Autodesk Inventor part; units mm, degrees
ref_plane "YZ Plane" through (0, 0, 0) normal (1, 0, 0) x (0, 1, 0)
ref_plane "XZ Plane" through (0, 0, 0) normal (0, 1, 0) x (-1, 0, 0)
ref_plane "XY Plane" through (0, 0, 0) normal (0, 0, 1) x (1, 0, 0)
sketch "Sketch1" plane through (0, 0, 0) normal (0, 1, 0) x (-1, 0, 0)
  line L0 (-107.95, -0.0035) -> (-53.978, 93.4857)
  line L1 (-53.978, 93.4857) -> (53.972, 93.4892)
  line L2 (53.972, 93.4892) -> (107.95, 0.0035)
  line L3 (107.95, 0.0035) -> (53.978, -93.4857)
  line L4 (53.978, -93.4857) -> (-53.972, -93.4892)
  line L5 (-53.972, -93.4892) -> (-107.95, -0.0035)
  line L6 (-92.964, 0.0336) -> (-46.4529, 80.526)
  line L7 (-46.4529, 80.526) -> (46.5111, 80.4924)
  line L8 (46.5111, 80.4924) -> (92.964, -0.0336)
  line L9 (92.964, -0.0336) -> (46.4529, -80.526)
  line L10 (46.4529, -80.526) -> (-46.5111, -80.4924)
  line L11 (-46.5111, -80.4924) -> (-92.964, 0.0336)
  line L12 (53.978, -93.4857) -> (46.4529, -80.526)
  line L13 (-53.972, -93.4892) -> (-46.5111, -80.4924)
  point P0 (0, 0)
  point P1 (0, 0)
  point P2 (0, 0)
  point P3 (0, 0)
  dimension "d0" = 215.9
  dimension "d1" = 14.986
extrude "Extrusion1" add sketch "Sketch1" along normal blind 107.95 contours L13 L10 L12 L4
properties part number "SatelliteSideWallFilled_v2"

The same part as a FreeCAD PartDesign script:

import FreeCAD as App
import Part
import Sketcher

V = App.Vector
Q = App.Units.Quantity


def add_polygon(sketch, points):
    """Adds a closed chain of lines whose ends are joined by coincident constraints."""
    first, n = sketch.GeometryCount, len(points)
    for a, b in zip(points, points[1:] + points[:1]):
        sketch.addGeometry(Part.LineSegment(App.Vector(*a, 0), App.Vector(*b, 0)), False)
    for i in range(n):
        sketch.addConstraint(Sketcher.Constraint("Coincident", first + i, 2, first + (i + 1) % n, 1))

doc = App.newDocument("Part")
body = doc.addObject("PartDesign::Body", "Body")

sketch1 = doc.addObject("Sketcher::SketchObject", "Sketch")
body.addObject(sketch1)
sketch1.AttachmentSupport = (doc.XZ_Plane, [""])
sketch1.MapMode = "FlatFace"
add_polygon(sketch1, [(46.5111, -80.4924), (53.972, -93.4892), (-53.978, -93.4857), (-46.4529, -80.526)])
sketch1.addConstraint(Sketcher.Constraint("Distance", 0, Q("0.59 in")))
sketch1.addConstraint(Sketcher.Constraint("Distance", 2, Q("0.59 in")))
sketch1.addConstraint(Sketcher.Constraint("Distance", 1, Q("4.25 in")))
sketch1.addConstraint(Sketcher.Constraint("Distance", 3, Q("3.66 in")))
sketch1.addConstraint(Sketcher.Constraint("DistanceY", 3, 2, -1, 1, Q("3.169 in")))
sketch1.addConstraint(Sketcher.Constraint("DistanceX", -1, 1, 0, 2, Q("53.972 mm")))
sketch1.addConstraint(Sketcher.Constraint("DistanceY", 0, 2, -1, 1, Q("93.4892 mm")))
sketch1.addConstraint(Sketcher.Constraint("DistanceY", 1, 2, -1, 1, Q("93.4857 mm")))
pad1 = doc.addObject("PartDesign::Pad", "Pad")
body.addObject(pad1)
pad1.Profile = sketch1
pad1.Length = Q("4.25 in")
pad1.Reversed = True

doc.recompute()
